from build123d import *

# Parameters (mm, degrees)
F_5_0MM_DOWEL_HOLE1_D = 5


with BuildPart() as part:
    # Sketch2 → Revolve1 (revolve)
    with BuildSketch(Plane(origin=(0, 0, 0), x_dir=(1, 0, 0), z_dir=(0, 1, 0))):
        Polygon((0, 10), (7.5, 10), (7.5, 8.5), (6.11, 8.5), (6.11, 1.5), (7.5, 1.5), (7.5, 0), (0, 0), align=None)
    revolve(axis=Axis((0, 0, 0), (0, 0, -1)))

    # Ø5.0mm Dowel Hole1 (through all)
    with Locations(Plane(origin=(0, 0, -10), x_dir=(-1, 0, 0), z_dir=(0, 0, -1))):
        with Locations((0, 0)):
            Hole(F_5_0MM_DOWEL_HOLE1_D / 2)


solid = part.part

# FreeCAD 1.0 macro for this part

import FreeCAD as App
import Part
import Sketcher
from FreeCAD import Vector
Q = App.Units.Quantity

doc = App.newDocument("Part")
body = doc.addObject("PartDesign::Body", "Body")

sketch1 = body.newObject("Sketcher::SketchObject", "Sketch")
sketch1.AttachmentSupport = (doc.getObject("XZ_Plane"), [""])
sketch1.MapMode = "FlatFace"
sketch1.addGeometry([
    Part.LineSegment(Vector(7.5, -10, 0), Vector(0, -10, 0)),
    Part.LineSegment(Vector(0, -10, 0), Vector(0, 0, 0)),
    Part.LineSegment(Vector(0, 0, 0), Vector(7.5, 0, 0)),
    Part.LineSegment(Vector(7.5, 0, 0), Vector(7.5, -1.5, 0)),
    Part.LineSegment(Vector(7.5, -1.5, 0), Vector(6.1, -1.5, 0)),
    Part.LineSegment(Vector(6.1, -1.5, 0), Vector(6.1, -8.5, 0)),
    Part.LineSegment(Vector(6.1, -8.5, 0), Vector(7.5, -8.5, 0)),
    Part.LineSegment(Vector(7.5, -8.5, 0), Vector(7.5, -10, 0)),
], False)
sketch1.addConstraint([
    Sketcher.Constraint("Coincident", 0, 2, 1, 1),
    Sketcher.Constraint("Coincident", 1, 2, 2, 1),
    Sketcher.Constraint("Coincident", 2, 2, 3, 1),
    Sketcher.Constraint("Coincident", 3, 2, 4, 1),
    Sketcher.Constraint("Coincident", 4, 2, 5, 1),
    Sketcher.Constraint("Coincident", 5, 2, 6, 1),
    Sketcher.Constraint("Coincident", 6, 2, 7, 1),
    Sketcher.Constraint("Coincident", 7, 2, 0, 1),
    Sketcher.Constraint("Horizontal", 0),
    Sketcher.Constraint("Vertical", 1),
    Sketcher.Constraint("Horizontal", 2),
    Sketcher.Constraint("Vertical", 3),
    Sketcher.Constraint("Horizontal", 4),
    Sketcher.Constraint("Vertical", 5),
    Sketcher.Constraint("Horizontal", 6),
    Sketcher.Constraint("Vertical", 7),
    Sketcher.Constraint("Coincident", 1, 2, -1, 1),
    Sketcher.Constraint("Vertical", 3, 2, 6, 2),
    Sketcher.Constraint("Equal", 3, 7),
    Sketcher.Constraint("DistanceY", 1, 1, 1, 2, Q("10 mm")),
    Sketcher.Constraint("DistanceY", 5, 2, 5, 1, Q("7 mm")),
    Sketcher.Constraint("DistanceX", 0, 2, 0, 1, Q("7.5 mm")),
    Sketcher.Constraint("DistanceX", 4, 2, 4, 1, Q("1.39 mm")),
])
revolution = body.newObject("PartDesign::Revolution", "Revolution")
revolution.Profile = sketch1
revolution.ReferenceAxis = (sketch1, ["V_Axis"])
revolution.Angle = 360

sketch2 = body.newObject("Sketcher::SketchObject", "Sketch001")
sketch2.AttachmentSupport = (doc.getObject("XY_Plane"), [""])
sketch2.MapMode = "FlatFace"
sketch2.AttachmentOffset = App.Placement(Vector(0, 0, -10), App.Rotation())
sketch2.addGeometry(Part.Circle(Vector(0, 0, 0), Vector(0, 0, 1), 2.5), False)
sketch2.addConstraint([
    Sketcher.Constraint("Coincident", 0, 3, -1, 1),
    Sketcher.Constraint("Diameter", 0, Q("5 mm")),
])
doc.recompute()
hole = body.newObject("PartDesign::Hole", "Hole")
hole.Profile = sketch2
hole.ThreadType = "None"
hole.Diameter = 5
hole.DepthType = "ThroughAll"
hole.Reversed = True

doc.recompute()
